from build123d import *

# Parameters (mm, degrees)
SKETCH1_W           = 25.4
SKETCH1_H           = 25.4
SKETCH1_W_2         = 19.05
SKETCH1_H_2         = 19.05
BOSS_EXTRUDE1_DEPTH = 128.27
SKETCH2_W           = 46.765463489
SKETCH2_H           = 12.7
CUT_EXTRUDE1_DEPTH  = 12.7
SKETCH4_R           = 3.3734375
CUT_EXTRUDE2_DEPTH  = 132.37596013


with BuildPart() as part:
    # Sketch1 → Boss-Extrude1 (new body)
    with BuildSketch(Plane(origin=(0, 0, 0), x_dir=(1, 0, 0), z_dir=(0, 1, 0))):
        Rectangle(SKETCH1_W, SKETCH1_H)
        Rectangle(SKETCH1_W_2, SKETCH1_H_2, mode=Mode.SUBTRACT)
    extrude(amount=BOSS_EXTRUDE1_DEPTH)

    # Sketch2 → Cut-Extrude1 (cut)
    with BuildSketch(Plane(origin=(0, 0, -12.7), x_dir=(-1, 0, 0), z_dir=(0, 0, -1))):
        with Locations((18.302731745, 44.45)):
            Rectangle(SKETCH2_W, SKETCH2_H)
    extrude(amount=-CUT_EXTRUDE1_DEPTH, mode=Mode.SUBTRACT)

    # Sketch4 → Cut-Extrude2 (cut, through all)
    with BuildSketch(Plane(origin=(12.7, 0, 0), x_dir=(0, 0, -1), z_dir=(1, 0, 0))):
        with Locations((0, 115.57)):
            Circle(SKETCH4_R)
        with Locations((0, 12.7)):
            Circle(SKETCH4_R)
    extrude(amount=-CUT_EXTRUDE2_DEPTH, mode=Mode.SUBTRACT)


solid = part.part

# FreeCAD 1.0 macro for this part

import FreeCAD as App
import Part
import Sketcher

V = App.Vector
Q = App.Units.Quantity

doc = App.newDocument("Part")
body = doc.addObject("PartDesign::Body", "Body")

# Sketch on XZ plane
sketch1 = doc.addObject("Sketcher::SketchObject", "Sketch")
body.addObject(sketch1)
sketch1.AttachmentSupport = (doc.XZ_Plane, [""])
sketch1.MapMode = "FlatFace"
sketch1.addGeometry([
    Part.LineSegment(V(-12.7, -12.7, 0), V(-12.7, 12.7, 0)),  # 0
    Part.LineSegment(V(-12.7, 12.7, 0), V(12.7, 12.7, 0)),  # 1
    Part.LineSegment(V(12.7, 12.7, 0), V(12.7, -12.7, 0)),  # 2
    Part.LineSegment(V(12.7, -12.7, 0), V(-12.7, -12.7, 0)),  # 3
    Part.LineSegment(V(9.525, 9.525, 0), V(-9.525, 9.525, 0)),  # 4
    Part.LineSegment(V(-9.525, 9.525, 0), V(-9.525, -9.525, 0)),  # 5
    Part.LineSegment(V(-9.525, -9.525, 0), V(9.525, -9.525, 0)),  # 6
    Part.LineSegment(V(9.525, -9.525, 0), V(9.525, 9.525, 0)),  # 7
], False)
sketch1.addConstraint([
    Sketcher.Constraint("Coincident", 0, 2, 1, 1),
    Sketcher.Constraint("Coincident", 1, 2, 2, 1),
    Sketcher.Constraint("Coincident", 2, 2, 3, 1),
    Sketcher.Constraint("Coincident", 3, 2, 0, 1),
    Sketcher.Constraint("Coincident", 4, 2, 5, 1),
    Sketcher.Constraint("Coincident", 5, 2, 6, 1),
    Sketcher.Constraint("Coincident", 6, 2, 7, 1),
    Sketcher.Constraint("Coincident", 7, 2, 4, 1),
    Sketcher.Constraint("Vertical", 0),
    Sketcher.Constraint("Horizontal", 1),
    Sketcher.Constraint("Vertical", 2),
    Sketcher.Constraint("Horizontal", 3),
    Sketcher.Constraint("Horizontal", 4),
    Sketcher.Constraint("Vertical", 5),
    Sketcher.Constraint("Horizontal", 6),
    Sketcher.Constraint("Vertical", 7),
    Sketcher.Constraint("Symmetric", 0, 2, 2, 2, -1, 1),
    Sketcher.Constraint("Symmetric", 4, 2, 6, 2, -1, 1),
    Sketcher.Constraint("Equal", 3, 0),
    Sketcher.Constraint("Equal", 6, 5),
    Sketcher.Constraint("DistanceX", 1, 1, 1, 2, Q("1 in")),
    Sketcher.Constraint("DistanceX", 4, 2, 4, 1, Q("0.75 in")),
])
pad1 = doc.addObject("PartDesign::Pad", "Pad")
body.addObject(pad1)
pad1.Profile = sketch1
pad1.Length = Q("5.05 in")
pad1.Reversed = True

# Sketch on XY plane
sketch2 = doc.addObject("Sketcher::SketchObject", "Sketch001")
body.addObject(sketch2)
sketch2.AttachmentSupport = (doc.XY_Plane, [""])
sketch2.MapMode = "FlatFace"
sketch2.AttachmentOffset = App.Placement(V(0, 0, -0.5 * 25.4), App.Rotation())
sketch2.addGeometry([
    Part.LineSegment(V(5.08, 50.8, 0), V(5.08, 38.1, 0)),
    Part.LineSegment(V(5.08, 38.1, 0), V(-41.685463, 38.1, 0)),
    Part.LineSegment(V(-41.685463, 38.1, 0), V(-41.685463, 50.8, 0)),
    Part.LineSegment(V(-41.685463, 50.8, 0), V(5.08, 50.8, 0)),
], False)
sketch2.addConstraint([
    Sketcher.Constraint("Coincident", 0, 2, 1, 1),
    Sketcher.Constraint("Coincident", 1, 2, 2, 1),
    Sketcher.Constraint("Coincident", 2, 2, 3, 1),
    Sketcher.Constraint("Coincident", 3, 2, 0, 1),
    Sketcher.Constraint("Vertical", 0),
    Sketcher.Constraint("Horizontal", 1),
    Sketcher.Constraint("Vertical", 2),
    Sketcher.Constraint("Horizontal", 3),
    Sketcher.Constraint("DistanceY", 0, 2, 0, 1, Q("0.5 in")),
    Sketcher.Constraint("DistanceY", -1, 1, 2, 2, Q("2 in")),
    Sketcher.Constraint("DistanceX", -1, 1, 0, 2, Q("0.2 in")),
    Sketcher.Constraint("DistanceX", 1, 2, 1, 1, 46.765463),
])
pocket1 = doc.addObject("PartDesign::Pocket", "Pocket")
body.addObject(pocket1)
pocket1.Profile = sketch2
pocket1.Length = Q("0.5 in")
pocket1.Reversed = True

# Sketch on YZ plane
sketch3 = doc.addObject("Sketcher::SketchObject", "Sketch002")
body.addObject(sketch3)
sketch3.AttachmentSupport = (doc.YZ_Plane, [""])
sketch3.MapMode = "FlatFace"
sketch3.AttachmentOffset = App.Placement(V(0, 0, 0.5 * 25.4), App.Rotation())
sketch3.addGeometry([
    Part.Circle(V(115.57, 0, 0), V(0, 0, 1), 3.373438),
    Part.Circle(V(12.7, 0, 0), V(0, 0, 1), 3.373438),
], False)
sketch3.addConstraint([
    Sketcher.Constraint("Equal", 0, 1),
    Sketcher.Constraint("PointOnObject", 0, 3, -1),
    Sketcher.Constraint("PointOnObject", 1, 3, -1),
    Sketcher.Constraint("Diameter", 0, Q("0.265625 in")),
    Sketcher.Constraint("DistanceX", -1, 1, 1, 3, Q("0.5 in")),
    Sketcher.Constraint("DistanceX", -1, 1, 0, 3, Q("4.55 in")),
])
pocket2 = doc.addObject("PartDesign::Pocket", "Pocket001")
body.addObject(pocket2)
pocket2.Profile = sketch3
pocket2.Type = "ThroughAll"

doc.recompute()
